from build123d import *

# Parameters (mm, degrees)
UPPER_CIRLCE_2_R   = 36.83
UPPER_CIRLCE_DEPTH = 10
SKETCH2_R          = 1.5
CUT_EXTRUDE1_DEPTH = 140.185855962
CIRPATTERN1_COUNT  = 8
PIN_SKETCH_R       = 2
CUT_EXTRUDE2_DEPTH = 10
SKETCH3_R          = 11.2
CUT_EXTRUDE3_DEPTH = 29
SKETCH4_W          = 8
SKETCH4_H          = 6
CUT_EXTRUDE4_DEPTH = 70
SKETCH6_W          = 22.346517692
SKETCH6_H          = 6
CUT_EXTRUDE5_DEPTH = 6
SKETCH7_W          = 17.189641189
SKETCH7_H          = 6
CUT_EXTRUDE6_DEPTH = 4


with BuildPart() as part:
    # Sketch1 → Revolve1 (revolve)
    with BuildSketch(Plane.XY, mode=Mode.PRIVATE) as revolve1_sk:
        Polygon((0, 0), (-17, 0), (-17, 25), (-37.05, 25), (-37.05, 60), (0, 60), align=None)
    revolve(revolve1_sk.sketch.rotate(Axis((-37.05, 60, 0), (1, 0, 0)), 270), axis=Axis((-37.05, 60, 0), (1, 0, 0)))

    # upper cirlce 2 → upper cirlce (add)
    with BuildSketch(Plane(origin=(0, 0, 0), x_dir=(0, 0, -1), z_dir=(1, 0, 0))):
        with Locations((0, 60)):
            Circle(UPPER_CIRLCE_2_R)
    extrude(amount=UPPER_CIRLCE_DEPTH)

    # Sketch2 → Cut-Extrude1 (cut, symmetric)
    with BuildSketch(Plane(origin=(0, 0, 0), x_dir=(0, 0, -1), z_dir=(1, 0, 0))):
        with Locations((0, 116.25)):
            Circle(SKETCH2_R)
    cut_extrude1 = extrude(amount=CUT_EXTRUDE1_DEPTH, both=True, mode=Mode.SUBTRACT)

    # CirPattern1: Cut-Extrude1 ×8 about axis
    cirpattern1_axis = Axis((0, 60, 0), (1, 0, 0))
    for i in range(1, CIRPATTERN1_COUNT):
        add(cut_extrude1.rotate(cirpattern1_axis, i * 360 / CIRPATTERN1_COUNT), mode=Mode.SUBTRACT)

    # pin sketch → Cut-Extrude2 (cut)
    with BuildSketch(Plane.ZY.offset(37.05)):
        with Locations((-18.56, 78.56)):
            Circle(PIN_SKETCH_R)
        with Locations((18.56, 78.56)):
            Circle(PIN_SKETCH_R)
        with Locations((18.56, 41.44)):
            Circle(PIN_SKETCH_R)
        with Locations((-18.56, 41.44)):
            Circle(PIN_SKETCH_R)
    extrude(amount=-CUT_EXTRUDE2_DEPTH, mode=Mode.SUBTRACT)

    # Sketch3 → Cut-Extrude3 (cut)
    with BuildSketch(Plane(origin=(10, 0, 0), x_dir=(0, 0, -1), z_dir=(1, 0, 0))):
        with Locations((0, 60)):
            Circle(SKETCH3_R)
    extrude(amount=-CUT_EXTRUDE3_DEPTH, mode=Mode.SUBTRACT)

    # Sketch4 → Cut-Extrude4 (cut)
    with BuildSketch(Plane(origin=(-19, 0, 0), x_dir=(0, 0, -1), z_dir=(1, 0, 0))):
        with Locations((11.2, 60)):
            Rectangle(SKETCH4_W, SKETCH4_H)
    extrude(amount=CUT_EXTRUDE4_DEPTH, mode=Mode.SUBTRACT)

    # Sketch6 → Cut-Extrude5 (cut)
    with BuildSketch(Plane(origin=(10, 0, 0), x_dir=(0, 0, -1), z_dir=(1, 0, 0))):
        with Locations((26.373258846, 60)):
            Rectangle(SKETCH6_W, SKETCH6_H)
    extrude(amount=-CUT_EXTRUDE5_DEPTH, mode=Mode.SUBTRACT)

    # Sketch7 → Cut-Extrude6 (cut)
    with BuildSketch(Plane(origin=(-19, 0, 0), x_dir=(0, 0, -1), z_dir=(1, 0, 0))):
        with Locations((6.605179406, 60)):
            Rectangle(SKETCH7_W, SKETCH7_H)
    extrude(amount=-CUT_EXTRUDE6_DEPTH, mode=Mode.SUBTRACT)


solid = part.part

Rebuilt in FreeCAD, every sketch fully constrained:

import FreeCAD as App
import Part
import Sketcher
from FreeCAD import Vector
Q = App.Units.Quantity

doc = App.newDocument("Part")
body = doc.addObject("PartDesign::Body", "Body")

# Sketch on XY plane
sketch1 = body.newObject("Sketcher::SketchObject", "Sketch")
sketch1.AttachmentSupport = (doc.getObject("XY_Plane"), [""])
sketch1.MapMode = "FlatFace"
sketch1.addGeometry([
    Part.LineSegment(Vector(-17, 0, 0), Vector(0, 0, 0)),  # 0
    Part.LineSegment(Vector(0, 0, 0), Vector(0, 60, 0)),  # 1
    Part.LineSegment(Vector(0, 60, 0), Vector(-37.05, 60, 0)),  # 2
    Part.LineSegment(Vector(-37.05, 60, 0), Vector(-37.05, 25, 0)),  # 3
    Part.LineSegment(Vector(-37.05, 25, 0), Vector(-17, 25, 0)),  # 4
    Part.LineSegment(Vector(-17, 25, 0), Vector(-17, 0, 0)),  # 5
], False)
sketch1.addGeometry(Part.LineSegment(Vector(-37.05, 60, 0), Vector(0, 60, 0)), True)  # axis
sketch1.addConstraint([
    Sketcher.Constraint("Coincident", 0, 2, 1, 1),
    Sketcher.Constraint("Coincident", 1, 2, 2, 1),
    Sketcher.Constraint("Coincident", 2, 2, 3, 1),
    Sketcher.Constraint("Coincident", 3, 2, 4, 1),
    Sketcher.Constraint("Coincident", 4, 2, 5, 1),
    Sketcher.Constraint("Coincident", 5, 2, 0, 1),
    Sketcher.Constraint("Horizontal", 0),
    Sketcher.Constraint("Vertical", 1),
    Sketcher.Constraint("Horizontal", 2),
    Sketcher.Constraint("Vertical", 3),
    Sketcher.Constraint("Horizontal", 4),
    Sketcher.Constraint("Vertical", 5),
    Sketcher.Constraint("Horizontal", 6),
    Sketcher.Constraint("Coincident", 0, 2, -1, 1),
    Sketcher.Constraint("Coincident", 6, 1, 2, 2),
    Sketcher.Constraint("PointOnObject", 6, 2, -2),
    Sketcher.Constraint("DistanceX", 0, 1, 0, 2, Q("17 mm")),
    Sketcher.Constraint("DistanceY", 1, 1, 1, 2, Q("60 mm")),
    Sketcher.Constraint("DistanceY", 3, 2, 3, 1, Q("35 mm")),
    Sketcher.Constraint("DistanceX", 2, 2, 2, 1, Q("37.05 mm")),
])
revolution = body.newObject("PartDesign::Revolution", "Revolution")
revolution.Profile = sketch1
revolution.ReferenceAxis = (sketch1, ["Axis0"])
revolution.Angle = 360

# Sketch on YZ plane
sketch2 = body.newObject("Sketcher::SketchObject", "Sketch001")
sketch2.AttachmentSupport = (doc.getObject("YZ_Plane"), [""])
sketch2.MapMode = "FlatFace"
sketch2.addGeometry(Part.Circle(Vector(60, 0, 0), Vector(0, 0, 1), 36.83), False)
sketch2.addConstraint([
    Sketcher.Constraint("PointOnObject", 0, 3, -1),
    Sketcher.Constraint("Diameter", 0, Q("73.66 mm")),
    Sketcher.Constraint("DistanceX", -1, 1, 0, 3, Q("60 mm")),
])
pad1 = body.newObject("PartDesign::Pad", "Pad")
pad1.Profile = sketch2
pad1.Length = 10

# Sketch on YZ plane
sketch3 = body.newObject("Sketcher::SketchObject", "Sketch002")
sketch3.AttachmentSupport = (doc.getObject("YZ_Plane"), [""])
sketch3.MapMode = "FlatFace"
sketch3.addGeometry(Part.Circle(Vector(116.25, 0, 0), Vector(0, 0, 1), 1.5), False)
sketch3.addConstraint([
    Sketcher.Constraint("PointOnObject", 0, 3, -1),
    Sketcher.Constraint("Diameter", 0, Q("3 mm")),
    Sketcher.Constraint("DistanceX", -1, 1, 0, 3, Q("116.25 mm")),
])
pocket1 = body.newObject("PartDesign::Pocket", "Pocket")
pocket1.Profile = sketch3
pocket1.Length = 280.371712
pocket1.Midplane = True
doc.recompute()

datumline = body.newObject("PartDesign::Line", "DatumLine")
datumline.Placement = App.Placement(Vector(0, 60, 0), App.Rotation(Vector(0, 0, 1), Vector(1, 0, 0)))
polarpattern = body.newObject("PartDesign::PolarPattern", "PolarPattern")
polarpattern.Originals = [pocket1]
polarpattern.Axis = (datumline, [""])
polarpattern.Angle = 360
polarpattern.Occurrences = 8
body.Tip = polarpattern

# Sketch on YZ plane
sketch4 = body.newObject("Sketcher::SketchObject", "Sketch003")
sketch4.AttachmentSupport = (doc.getObject("YZ_Plane"), [""])
sketch4.MapMode = "FlatFace"
sketch4.AttachmentOffset = App.Placement(Vector(0, 0, -37.05), App.Rotation())
sketch4.addGeometry([
    Part.Circle(Vector(78.56, -18.56, 0), Vector(0, 0, 1), 2),
    Part.Circle(Vector(78.56, 18.56, 0), Vector(0, 0, 1), 2),
    Part.Circle(Vector(41.44, 18.56, 0), Vector(0, 0, 1), 2),
    Part.Circle(Vector(41.44, -18.56, 0), Vector(0, 0, 1), 2),
], False)
sketch4.addConstraint([
    Sketcher.Constraint("Equal", 0, 1),
    Sketcher.Constraint("Equal", 1, 2),
    Sketcher.Constraint("Equal", 2, 3),
    Sketcher.Constraint("Symmetric", 0, 3, 1, 3, -1),
    Sketcher.Constraint("Symmetric", 2, 3, 3, 3, -1),
    Sketcher.Constraint("Horizontal", 1, 3, 2, 3),
    Sketcher.Constraint("Diameter", 0, Q("4 mm")),
    Sketcher.Constraint("DistanceX", -1, 1, 0, 3, Q("78.56 mm")),
    Sketcher.Constraint("DistanceY", 0, 3, -1, 1, Q("18.56 mm")),
    Sketcher.Constraint("DistanceX", -1, 1, 2, 3, Q("41.44 mm")),
])
pocket2 = body.newObject("PartDesign::Pocket", "Pocket001")
pocket2.Profile = sketch4
pocket2.Length = 10
pocket2.Reversed = True

# Sketch on YZ plane
sketch5 = body.newObject("Sketcher::SketchObject", "Sketch004")
sketch5.AttachmentSupport = (doc.getObject("YZ_Plane"), [""])
sketch5.MapMode = "FlatFace"
sketch5.AttachmentOffset = App.Placement(Vector(0, 0, 10), App.Rotation())
sketch5.addGeometry(Part.Circle(Vector(60, 0, 0), Vector(0, 0, 1), 11.2), False)
sketch5.addConstraint([
    Sketcher.Constraint("PointOnObject", 0, 3, -1),
    Sketcher.Constraint("Diameter", 0, Q("22.4 mm")),
    Sketcher.Constraint("DistanceX", -1, 1, 0, 3, Q("60 mm")),
])
pocket3 = body.newObject("PartDesign::Pocket", "Pocket002")
pocket3.Profile = sketch5
pocket3.Length = 29

# Sketch on YZ plane
sketch6 = body.newObject("Sketcher::SketchObject", "Sketch005")
sketch6.AttachmentSupport = (doc.getObject("YZ_Plane"), [""])
sketch6.MapMode = "FlatFace"
sketch6.AttachmentOffset = App.Placement(Vector(0, 0, -19), App.Rotation())
sketch6.addGeometry([
    Part.LineSegment(Vector(63, -7.2, 0), Vector(57, -7.2, 0)),
    Part.LineSegment(Vector(57, -7.2, 0), Vector(57, -15.2, 0)),
    Part.LineSegment(Vector(57, -15.2, 0), Vector(63, -15.2, 0)),
    Part.LineSegment(Vector(63, -15.2, 0), Vector(63, -7.2, 0)),
], False)
sketch6.addConstraint([
    Sketcher.Constraint("Coincident", 0, 2, 1, 1),
    Sketcher.Constraint("Coincident", 1, 2, 2, 1),
    Sketcher.Constraint("Coincident", 2, 2, 3, 1),
    Sketcher.Constraint("Coincident", 3, 2, 0, 1),
    Sketcher.Constraint("Horizontal", 0),
    Sketcher.Constraint("Vertical", 1),
    Sketcher.Constraint("Horizontal", 2),
    Sketcher.Constraint("Vertical", 3),
    Sketcher.Constraint("DistanceX", 0, 2, 0, 1, Q("6 mm")),
    Sketcher.Constraint("DistanceY", 1, 2, 1, 1, Q("8 mm")),
    Sketcher.Constraint("DistanceX", -1, 1, 0, 2, Q("57 mm")),
    Sketcher.Constraint("DistanceY", 0, 2, -1, 1, Q("7.2 mm")),
])
pocket4 = body.newObject("PartDesign::Pocket", "Pocket003")
pocket4.Profile = sketch6
pocket4.Length = 70
pocket4.Reversed = True

# Sketch on YZ plane
sketch7 = body.newObject("Sketcher::SketchObject", "Sketch006")
sketch7.AttachmentSupport = (doc.getObject("YZ_Plane"), [""])
sketch7.MapMode = "FlatFace"
sketch7.AttachmentOffset = App.Placement(Vector(0, 0, 10), App.Rotation())
sketch7.addGeometry([
    Part.LineSegment(Vector(63, -15.2, 0), Vector(57, -15.2, 0)),
    Part.LineSegment(Vector(57, -15.2, 0), Vector(57, -37.546518, 0)),
    Part.LineSegment(Vector(57, -37.546518, 0), Vector(63, -37.546518, 0)),
    Part.LineSegment(Vector(63, -37.546518, 0), Vector(63, -15.2, 0)),
], False)
sketch7.addConstraint([
    Sketcher.Constraint("Coincident", 0, 2, 1, 1),
    Sketcher.Constraint("Coincident", 1, 2, 2, 1),
    Sketcher.Constraint("Coincident", 2, 2, 3, 1),
    Sketcher.Constraint("Coincident", 3, 2, 0, 1),
    Sketcher.Constraint("Horizontal", 0),
    Sketcher.Constraint("Vertical", 1),
    Sketcher.Constraint("Horizontal", 2),
    Sketcher.Constraint("Vertical", 3),
    Sketcher.Constraint("DistanceX", 0, 2, 0, 1, Q("6 mm")),
    Sketcher.Constraint("DistanceX", -1, 1, 0, 2, Q("57 mm")),
    Sketcher.Constraint("DistanceY", 0, 2, -1, 1, Q("15.2 mm")),
    Sketcher.Constraint("DistanceY", 1, 2, 1, 1, Q("22.346518 mm")),
])
pocket5 = body.newObject("PartDesign::Pocket", "Pocket004")
pocket5.Profile = sketch7
pocket5.Length = 6

# Sketch on YZ plane
sketch8 = body.newObject("Sketcher::SketchObject", "Sketch007")
sketch8.AttachmentSupport = (doc.getObject("YZ_Plane"), [""])
sketch8.MapMode = "FlatFace"
sketch8.AttachmentOffset = App.Placement(Vector(0, 0, -19), App.Rotation())
sketch8.addGeometry([
    Part.LineSegment(Vector(63, 1.989641, 0), Vector(57, 1.989641, 0)),
    Part.LineSegment(Vector(57, 1.989641, 0), Vector(57, -15.2, 0)),
    Part.LineSegment(Vector(57, -15.2, 0), Vector(63, -15.2, 0)),
    Part.LineSegment(Vector(63, -15.2, 0), Vector(63, 1.989641, 0)),
], False)
sketch8.addConstraint([
    Sketcher.Constraint("Coincident", 0, 2, 1, 1),
    Sketcher.Constraint("Coincident", 1, 2, 2, 1),
    Sketcher.Constraint("Coincident", 2, 2, 3, 1),
    Sketcher.Constraint("Coincident", 3, 2, 0, 1),
    Sketcher.Constraint("Horizontal", 0),
    Sketcher.Constraint("Vertical", 1),
    Sketcher.Constraint("Horizontal", 2),
    Sketcher.Constraint("Vertical", 3),
    Sketcher.Constraint("DistanceX", 0, 2, 0, 1, Q("6 mm")),
    Sketcher.Constraint("DistanceX", -1, 1, 0, 2, Q("57 mm")),
    Sketcher.Constraint("DistanceY", 1, 2, -1, 1, Q("15.2 mm")),
    Sketcher.Constraint("DistanceY", 1, 2, 1, 1, Q("17.189641 mm")),
])
pocket6 = body.newObject("PartDesign::Pocket", "Pocket005")
pocket6.Profile = sketch8
pocket6.Length = 4

doc.recompute()
